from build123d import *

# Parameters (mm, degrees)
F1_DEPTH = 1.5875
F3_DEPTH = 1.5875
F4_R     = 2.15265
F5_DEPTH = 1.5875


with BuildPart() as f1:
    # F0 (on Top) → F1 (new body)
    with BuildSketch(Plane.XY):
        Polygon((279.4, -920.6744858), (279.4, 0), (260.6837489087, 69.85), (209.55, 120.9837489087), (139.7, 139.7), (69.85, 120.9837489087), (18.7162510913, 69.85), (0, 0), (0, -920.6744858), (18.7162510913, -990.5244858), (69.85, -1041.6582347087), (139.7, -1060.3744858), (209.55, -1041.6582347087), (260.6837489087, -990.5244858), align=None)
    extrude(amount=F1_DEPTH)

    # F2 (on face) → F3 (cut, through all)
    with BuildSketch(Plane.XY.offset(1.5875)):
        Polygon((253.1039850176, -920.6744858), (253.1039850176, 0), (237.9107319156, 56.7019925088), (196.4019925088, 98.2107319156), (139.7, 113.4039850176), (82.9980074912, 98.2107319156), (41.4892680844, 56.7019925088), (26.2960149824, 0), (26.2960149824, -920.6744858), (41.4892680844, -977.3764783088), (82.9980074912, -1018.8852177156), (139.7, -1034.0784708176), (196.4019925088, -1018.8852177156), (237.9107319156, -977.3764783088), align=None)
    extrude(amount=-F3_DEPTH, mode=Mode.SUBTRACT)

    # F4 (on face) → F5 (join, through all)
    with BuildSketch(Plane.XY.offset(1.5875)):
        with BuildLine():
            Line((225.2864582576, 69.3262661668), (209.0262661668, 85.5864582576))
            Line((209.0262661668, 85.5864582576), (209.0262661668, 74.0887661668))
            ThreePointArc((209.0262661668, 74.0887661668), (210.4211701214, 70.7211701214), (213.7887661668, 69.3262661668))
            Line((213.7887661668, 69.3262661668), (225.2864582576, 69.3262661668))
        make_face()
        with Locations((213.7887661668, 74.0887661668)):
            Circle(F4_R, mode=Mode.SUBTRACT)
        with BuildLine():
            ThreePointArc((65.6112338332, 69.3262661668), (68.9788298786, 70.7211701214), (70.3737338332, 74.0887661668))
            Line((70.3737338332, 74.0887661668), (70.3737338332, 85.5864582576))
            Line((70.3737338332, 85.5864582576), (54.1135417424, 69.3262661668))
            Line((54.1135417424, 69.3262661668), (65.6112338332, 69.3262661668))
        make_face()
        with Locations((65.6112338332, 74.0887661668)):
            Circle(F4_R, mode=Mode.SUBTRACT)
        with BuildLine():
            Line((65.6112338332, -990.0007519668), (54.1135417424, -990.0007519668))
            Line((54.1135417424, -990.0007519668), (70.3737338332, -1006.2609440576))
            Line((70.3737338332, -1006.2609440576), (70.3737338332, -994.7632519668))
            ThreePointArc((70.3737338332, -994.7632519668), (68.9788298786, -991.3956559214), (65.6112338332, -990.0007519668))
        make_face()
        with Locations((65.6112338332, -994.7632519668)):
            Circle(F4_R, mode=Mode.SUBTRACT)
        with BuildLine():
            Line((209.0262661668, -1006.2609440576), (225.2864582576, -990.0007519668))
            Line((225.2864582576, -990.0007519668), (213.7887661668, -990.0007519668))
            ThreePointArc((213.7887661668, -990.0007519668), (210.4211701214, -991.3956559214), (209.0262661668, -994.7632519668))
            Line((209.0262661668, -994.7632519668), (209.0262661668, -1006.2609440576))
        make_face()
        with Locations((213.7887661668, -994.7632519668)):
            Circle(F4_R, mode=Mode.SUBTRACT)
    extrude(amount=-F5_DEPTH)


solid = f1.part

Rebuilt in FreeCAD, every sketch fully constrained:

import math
import FreeCAD as App
import Part
import Sketcher
Q = App.Units.Quantity

doc = App.newDocument("Part")
body = doc.addObject("PartDesign::Body", "Body")

# Sketch on XY plane
sketch1 = doc.addObject("Sketcher::SketchObject", "Sketch")
body.addObject(sketch1)
sketch1.AttachmentSupport = (doc.XY_Plane, [""])
sketch1.MapMode = "FlatFace"
sketch1.addGeometry([
    Part.LineSegment(App.Vector(279, -921, 0), App.Vector(279, 0, 0)),  # 0
    Part.LineSegment(App.Vector(279, 0, 0), App.Vector(261, 70, 0)),  # 1
    Part.LineSegment(App.Vector(261, 70, 0), App.Vector(210, 121, 0)),  # 2
    Part.LineSegment(App.Vector(210, 121, 0), App.Vector(140, 140, 0)),  # 3
    Part.LineSegment(App.Vector(140, 140, 0), App.Vector(70, 121, 0)),  # 4
    Part.LineSegment(App.Vector(70, 121, 0), App.Vector(19, 70, 0)),  # 5
    Part.LineSegment(App.Vector(19, 70, 0), App.Vector(0, 0, 0)),  # 6
    Part.LineSegment(App.Vector(0, 0, 0), App.Vector(0, -921, 0)),  # 7
    Part.LineSegment(App.Vector(0, -921, 0), App.Vector(19, -991, 0)),  # 8
    Part.LineSegment(App.Vector(19, -991, 0), App.Vector(70, -1042, 0)),  # 9
    Part.LineSegment(App.Vector(70, -1042, 0), App.Vector(140, -1060, 0)),  # 10
    Part.LineSegment(App.Vector(140, -1060, 0), App.Vector(210, -1042, 0)),  # 11
    Part.LineSegment(App.Vector(210, -1042, 0), App.Vector(261, -991, 0)),  # 12
    Part.LineSegment(App.Vector(261, -991, 0), App.Vector(279, -921, 0)),  # 13
], False)
sketch1.addConstraint([
    Sketcher.Constraint("Coincident", 0, 2, 1, 1),
    Sketcher.Constraint("Coincident", 1, 2, 2, 1),
    Sketcher.Constraint("Coincident", 2, 2, 3, 1),
    Sketcher.Constraint("Coincident", 3, 2, 4, 1),
    Sketcher.Constraint("Coincident", 4, 2, 5, 1),
    Sketcher.Constraint("Coincident", 5, 2, 6, 1),
    Sketcher.Constraint("Coincident", 6, 2, 7, 1),
    Sketcher.Constraint("Coincident", 7, 2, 8, 1),
    Sketcher.Constraint("Coincident", 8, 2, 9, 1),
    Sketcher.Constraint("Coincident", 9, 2, 10, 1),
    Sketcher.Constraint("Coincident", 10, 2, 11, 1),
    Sketcher.Constraint("Coincident", 11, 2, 12, 1),
    Sketcher.Constraint("Coincident", 12, 2, 13, 1),
    Sketcher.Constraint("Coincident", 13, 2, 0, 1),
    Sketcher.Constraint("Vertical", 0),
    Sketcher.Constraint("Vertical", 7),
    Sketcher.Constraint("Coincident", 6, 2, -1, 1),
    Sketcher.Constraint("PointOnObject", 0, 2, -1),
    Sketcher.Constraint("Perpendicular", 1, 4),
    Sketcher.Constraint("Perpendicular", 2, 5),
    Sketcher.Constraint("Perpendicular", 3, 6),
    Sketcher.Constraint("Perpendicular", 4, 8),
    Sketcher.Constraint("Perpendicular", 5, 9),
    Sketcher.Constraint("Perpendicular", 6, 10),
    Sketcher.Constraint("Perpendicular", 8, 11),
    Sketcher.Constraint("Perpendicular", 9, 12),
    Sketcher.Constraint("Perpendicular", 10, 13),
    Sketcher.Constraint("Horizontal", 2, 2, 4, 2),
    Sketcher.Constraint("Horizontal", 1, 2, 5, 2),
    Sketcher.Constraint("Horizontal", 9, 2, 11, 2),
    Sketcher.Constraint("Horizontal", 8, 2, 12, 2),
    Sketcher.Constraint("Horizontal", 7, 2, 13, 2),
    Sketcher.Constraint("Vertical", 5, 2, 8, 2),
    Sketcher.Constraint("Vertical", 4, 2, 9, 2),
    Sketcher.Constraint("Vertical", 3, 2, 10, 2),
    Sketcher.Constraint("Vertical", 2, 2, 11, 2),
    Sketcher.Constraint("Equal", 1, 2),
    Sketcher.Constraint("Equal", 2, 3),
    Sketcher.Constraint("DistanceX", -1, 1, 0, 2, Q("11 in")),
    Sketcher.Constraint("Angle", 1, Q("105 deg")),
    Sketcher.Constraint("DistanceY", 0, 1, 0, 2, 920.674486),
])
pad1 = doc.addObject("PartDesign::Pad", "Pad")
body.addObject(pad1)
pad1.Profile = sketch1
pad1.Length = Q("0.0625 in")

# Sketch on XY plane
sketch2 = doc.addObject("Sketcher::SketchObject", "Sketch001")
body.addObject(sketch2)
sketch2.AttachmentSupport = (doc.XY_Plane, [""])
sketch2.MapMode = "FlatFace"
sketch2.AttachmentOffset = App.Placement(App.Vector(0, 0, 0.0625 * 25.4), App.Rotation())
sketch2.addGeometry([
    Part.LineSegment(App.Vector(253, -921, 0), App.Vector(253, 0, 0)),  # 0
    Part.LineSegment(App.Vector(253, 0, 0), App.Vector(238, 57, 0)),  # 1
    Part.LineSegment(App.Vector(238, 57, 0), App.Vector(196, 98, 0)),  # 2
    Part.LineSegment(App.Vector(196, 98, 0), App.Vector(140, 113, 0)),  # 3
    Part.LineSegment(App.Vector(140, 113, 0), App.Vector(83, 98, 0)),  # 4
    Part.LineSegment(App.Vector(83, 98, 0), App.Vector(41, 57, 0)),  # 5
    Part.LineSegment(App.Vector(41, 57, 0), App.Vector(26, 0, 0)),  # 6
    Part.LineSegment(App.Vector(26, 0, 0), App.Vector(26, -921, 0)),  # 7
    Part.LineSegment(App.Vector(26, -921, 0), App.Vector(41, -977, 0)),  # 8
    Part.LineSegment(App.Vector(41, -977, 0), App.Vector(83, -1019, 0)),  # 9
    Part.LineSegment(App.Vector(83, -1019, 0), App.Vector(140, -1034, 0)),  # 10
    Part.LineSegment(App.Vector(140, -1034, 0), App.Vector(196, -1019, 0)),  # 11
    Part.LineSegment(App.Vector(196, -1019, 0), App.Vector(238, -977, 0)),  # 12
    Part.LineSegment(App.Vector(238, -977, 0), App.Vector(253, -921, 0)),  # 13
], False)
sketch2.addConstraint([
    Sketcher.Constraint("Coincident", 0, 2, 1, 1),
    Sketcher.Constraint("Coincident", 1, 2, 2, 1),
    Sketcher.Constraint("Coincident", 2, 2, 3, 1),
    Sketcher.Constraint("Coincident", 3, 2, 4, 1),
    Sketcher.Constraint("Coincident", 4, 2, 5, 1),
    Sketcher.Constraint("Coincident", 5, 2, 6, 1),
    Sketcher.Constraint("Coincident", 6, 2, 7, 1),
    Sketcher.Constraint("Coincident", 7, 2, 8, 1),
    Sketcher.Constraint("Coincident", 8, 2, 9, 1),
    Sketcher.Constraint("Coincident", 9, 2, 10, 1),
    Sketcher.Constraint("Coincident", 10, 2, 11, 1),
    Sketcher.Constraint("Coincident", 11, 2, 12, 1),
    Sketcher.Constraint("Coincident", 12, 2, 13, 1),
    Sketcher.Constraint("Coincident", 13, 2, 0, 1),
    Sketcher.Constraint("Vertical", 0),
    Sketcher.Constraint("Vertical", 7),
    Sketcher.Constraint("PointOnObject", 0, 2, -1),
    Sketcher.Constraint("PointOnObject", 6, 2, -1),
    Sketcher.Constraint("Perpendicular", 1, 4),
    Sketcher.Constraint("Perpendicular", 2, 5),
    Sketcher.Constraint("Perpendicular", 3, 6),
    Sketcher.Constraint("Perpendicular", 4, 8),
    Sketcher.Constraint("Perpendicular", 5, 9),
    Sketcher.Constraint("Perpendicular", 6, 10),
    Sketcher.Constraint("Perpendicular", 8, 11),
    Sketcher.Constraint("Perpendicular", 9, 12),
    Sketcher.Constraint("Perpendicular", 10, 13),
    Sketcher.Constraint("Horizontal", 2, 2, 4, 2),
    Sketcher.Constraint("Horizontal", 1, 2, 5, 2),
    Sketcher.Constraint("Horizontal", 9, 2, 11, 2),
    Sketcher.Constraint("Horizontal", 8, 2, 12, 2),
    Sketcher.Constraint("Horizontal", 7, 2, 13, 2),
    Sketcher.Constraint("Vertical", 5, 2, 8, 2),
    Sketcher.Constraint("Vertical", 4, 2, 9, 2),
    Sketcher.Constraint("Vertical", 3, 2, 10, 2),
    Sketcher.Constraint("Vertical", 2, 2, 11, 2),
    Sketcher.Constraint("Equal", 1, 2),
    Sketcher.Constraint("Equal", 2, 3),
    Sketcher.Constraint("Angle", 1, Q("105 deg")),
    Sketcher.Constraint("DistanceX", -1, 1, 3, 2, Q("5.5 in")),
    Sketcher.Constraint("DistanceY", 0, 1, 0, 2, 920.674486),
    Sketcher.Constraint("DistanceX", -1, 1, 1, 2, 237.910732),
])
pocket1 = doc.addObject("PartDesign::Pocket", "Pocket")
body.addObject(pocket1)
pocket1.Profile = sketch2
pocket1.Type = "ThroughAll"

# Sketch on XY plane
sketch3 = doc.addObject("Sketcher::SketchObject", "Sketch002")
body.addObject(sketch3)
sketch3.AttachmentSupport = (doc.XY_Plane, [""])
sketch3.MapMode = "FlatFace"
sketch3.AttachmentOffset = App.Placement(App.Vector(0, 0, 0.0625 * 25.4), App.Rotation())
sketch3.addGeometry([
    Part.LineSegment(App.Vector(225.3, 69.3, 0), App.Vector(209, 85.6, 0)),  # 0
    Part.LineSegment(App.Vector(209, 85.6, 0), App.Vector(209, 74.1, 0)),  # 1
    Part.ArcOfCircle(Part.Circle(App.Vector(213.8, 74.1, 0), App.Vector(0, 0, 1), 4.8), math.radians(180), math.radians(270)),  # 2
    Part.LineSegment(App.Vector(213.8, 69.3, 0), App.Vector(225.3, 69.3, 0)),  # 3
    Part.Circle(App.Vector(213.8, 74.1, 0), App.Vector(0, 0, 1), 2.2),  # 4
    Part.ArcOfCircle(Part.Circle(App.Vector(65.6, 74.1, 0), App.Vector(0, 0, 1), 4.8), math.radians(-90), math.radians(0)),  # 5
    Part.LineSegment(App.Vector(70.4, 74.1, 0), App.Vector(70.4, 85.6, 0)),  # 6
    Part.LineSegment(App.Vector(70.4, 85.6, 0), App.Vector(54.1, 69.3, 0)),  # 7
    Part.LineSegment(App.Vector(54.1, 69.3, 0), App.Vector(65.6, 69.3, 0)),  # 8
    Part.Circle(App.Vector(65.6, 74.1, 0), App.Vector(0, 0, 1), 2.2),  # 9
    Part.LineSegment(App.Vector(65.6, -990, 0), App.Vector(54.1, -990, 0)),  # 10
    Part.LineSegment(App.Vector(54.1, -990, 0), App.Vector(70.4, -1006.3, 0)),  # 11
    Part.LineSegment(App.Vector(70.4, -1006.3, 0), App.Vector(70.4, -994.8, 0)),  # 12
    Part.ArcOfCircle(Part.Circle(App.Vector(65.6, -994.8, 0), App.Vector(0, 0, 1), 4.8), math.radians(0), math.radians(90)),  # 13
    Part.Circle(App.Vector(65.6, -994.8, 0), App.Vector(0, 0, 1), 2.2),  # 14
    Part.LineSegment(App.Vector(209, -1006.3, 0), App.Vector(225.3, -990, 0)),  # 15
    Part.LineSegment(App.Vector(225.3, -990, 0), App.Vector(213.8, -990, 0)),  # 16
    Part.ArcOfCircle(Part.Circle(App.Vector(213.8, -994.8, 0), App.Vector(0, 0, 1), 4.8), math.radians(90), math.radians(180)),  # 17
    Part.LineSegment(App.Vector(209, -994.8, 0), App.Vector(209, -1006.3, 0)),  # 18
    Part.Circle(App.Vector(213.8, -994.8, 0), App.Vector(0, 0, 1), 2.2),  # 19
], False)
sketch3.addConstraint([
    Sketcher.Constraint("Coincident", 0, 2, 1, 1),
    Sketcher.Constraint("Tangent", 1, 2, 2, 1),
    Sketcher.Constraint("Tangent", 2, 2, 3, 1),
    Sketcher.Constraint("Coincident", 3, 2, 0, 1),
    Sketcher.Constraint("Tangent", 5, 2, 6, 1),
    Sketcher.Constraint("Coincident", 6, 2, 7, 1),
    Sketcher.Constraint("Coincident", 7, 2, 8, 1),
    Sketcher.Constraint("Tangent", 8, 2, 5, 1),
    Sketcher.Constraint("Coincident", 10, 2, 11, 1),
    Sketcher.Constraint("Coincident", 11, 2, 12, 1),
    Sketcher.Constraint("Tangent", 12, 2, 13, 1),
    Sketcher.Constraint("Tangent", 13, 2, 10, 1),
    Sketcher.Constraint("Coincident", 15, 2, 16, 1),
    Sketcher.Constraint("Tangent", 16, 2, 17, 1),
    Sketcher.Constraint("Tangent", 17, 2, 18, 1),
    Sketcher.Constraint("Coincident", 18, 2, 15, 1),
    Sketcher.Constraint("Vertical", 1),
    Sketcher.Constraint("Horizontal", 3),
    Sketcher.Constraint("Vertical", 6),
    Sketcher.Constraint("Horizontal", 8),
    Sketcher.Constraint("Horizontal", 10),
    Sketcher.Constraint("Vertical", 12),
    Sketcher.Constraint("Horizontal", 16),
    Sketcher.Constraint("Vertical", 18),
    Sketcher.Constraint("Coincident", 4, 3, 2, 3),
    Sketcher.Constraint("Coincident", 9, 3, 5, 3),
    Sketcher.Constraint("Coincident", 14, 3, 13, 3),
    Sketcher.Constraint("Coincident", 19, 3, 17, 3),
    Sketcher.Constraint("Equal", 2, 5),
    Sketcher.Constraint("Equal", 4, 9),
    Sketcher.Constraint("Equal", 5, 13),
    Sketcher.Constraint("Equal", 9, 14),
    Sketcher.Constraint("Equal", 13, 17),
    Sketcher.Constraint("Equal", 14, 19),
    Sketcher.Constraint("Perpendicular", 0, 7),
    Sketcher.Constraint("Perpendicular", 7, 11),
    Sketcher.Constraint("Perpendicular", 11, 15),
    Sketcher.Constraint("Horizontal", 4, 3, 5, 3),
    Sketcher.Constraint("Horizontal", 14, 3, 17, 3),
    Sketcher.Constraint("Horizontal", 0, 2, 6, 2),
    Sketcher.Constraint("Horizontal", 11, 2, 18, 2),
    Sketcher.Constraint("Vertical", 9, 3, 13, 3),
    Sketcher.Constraint("Vertical", 4, 3, 17, 3),
    Sketcher.Constraint("Vertical", 7, 2, 10, 2),
    Sketcher.Constraint("Vertical", 3, 2, 15, 2),
    Sketcher.Constraint("Radius", 2, Q("0.1875 in")),
    Sketcher.Constraint("Diameter", 4, Q("0.1695 in")),
    Sketcher.Constraint("DistanceX", 3, 1, 3, 2, 11.497692),
    Sketcher.Constraint("DistanceY", 13, 3, -1, 1, 994.763252),
    Sketcher.Constraint("DistanceY", -1, 1, 0, 2, 85.586458),
    Sketcher.Constraint("DistanceX", -1, 1, 3, 2, 225.286458),
    Sketcher.Constraint("DistanceX", -1, 1, 7, 2, 54.113542),
])
pad2 = doc.addObject("PartDesign::Pad", "Pad001")
body.addObject(pad2)
pad2.Profile = sketch3
pad2.Length = Q("0.0625 in")
pad2.Reversed = True

doc.recompute()
